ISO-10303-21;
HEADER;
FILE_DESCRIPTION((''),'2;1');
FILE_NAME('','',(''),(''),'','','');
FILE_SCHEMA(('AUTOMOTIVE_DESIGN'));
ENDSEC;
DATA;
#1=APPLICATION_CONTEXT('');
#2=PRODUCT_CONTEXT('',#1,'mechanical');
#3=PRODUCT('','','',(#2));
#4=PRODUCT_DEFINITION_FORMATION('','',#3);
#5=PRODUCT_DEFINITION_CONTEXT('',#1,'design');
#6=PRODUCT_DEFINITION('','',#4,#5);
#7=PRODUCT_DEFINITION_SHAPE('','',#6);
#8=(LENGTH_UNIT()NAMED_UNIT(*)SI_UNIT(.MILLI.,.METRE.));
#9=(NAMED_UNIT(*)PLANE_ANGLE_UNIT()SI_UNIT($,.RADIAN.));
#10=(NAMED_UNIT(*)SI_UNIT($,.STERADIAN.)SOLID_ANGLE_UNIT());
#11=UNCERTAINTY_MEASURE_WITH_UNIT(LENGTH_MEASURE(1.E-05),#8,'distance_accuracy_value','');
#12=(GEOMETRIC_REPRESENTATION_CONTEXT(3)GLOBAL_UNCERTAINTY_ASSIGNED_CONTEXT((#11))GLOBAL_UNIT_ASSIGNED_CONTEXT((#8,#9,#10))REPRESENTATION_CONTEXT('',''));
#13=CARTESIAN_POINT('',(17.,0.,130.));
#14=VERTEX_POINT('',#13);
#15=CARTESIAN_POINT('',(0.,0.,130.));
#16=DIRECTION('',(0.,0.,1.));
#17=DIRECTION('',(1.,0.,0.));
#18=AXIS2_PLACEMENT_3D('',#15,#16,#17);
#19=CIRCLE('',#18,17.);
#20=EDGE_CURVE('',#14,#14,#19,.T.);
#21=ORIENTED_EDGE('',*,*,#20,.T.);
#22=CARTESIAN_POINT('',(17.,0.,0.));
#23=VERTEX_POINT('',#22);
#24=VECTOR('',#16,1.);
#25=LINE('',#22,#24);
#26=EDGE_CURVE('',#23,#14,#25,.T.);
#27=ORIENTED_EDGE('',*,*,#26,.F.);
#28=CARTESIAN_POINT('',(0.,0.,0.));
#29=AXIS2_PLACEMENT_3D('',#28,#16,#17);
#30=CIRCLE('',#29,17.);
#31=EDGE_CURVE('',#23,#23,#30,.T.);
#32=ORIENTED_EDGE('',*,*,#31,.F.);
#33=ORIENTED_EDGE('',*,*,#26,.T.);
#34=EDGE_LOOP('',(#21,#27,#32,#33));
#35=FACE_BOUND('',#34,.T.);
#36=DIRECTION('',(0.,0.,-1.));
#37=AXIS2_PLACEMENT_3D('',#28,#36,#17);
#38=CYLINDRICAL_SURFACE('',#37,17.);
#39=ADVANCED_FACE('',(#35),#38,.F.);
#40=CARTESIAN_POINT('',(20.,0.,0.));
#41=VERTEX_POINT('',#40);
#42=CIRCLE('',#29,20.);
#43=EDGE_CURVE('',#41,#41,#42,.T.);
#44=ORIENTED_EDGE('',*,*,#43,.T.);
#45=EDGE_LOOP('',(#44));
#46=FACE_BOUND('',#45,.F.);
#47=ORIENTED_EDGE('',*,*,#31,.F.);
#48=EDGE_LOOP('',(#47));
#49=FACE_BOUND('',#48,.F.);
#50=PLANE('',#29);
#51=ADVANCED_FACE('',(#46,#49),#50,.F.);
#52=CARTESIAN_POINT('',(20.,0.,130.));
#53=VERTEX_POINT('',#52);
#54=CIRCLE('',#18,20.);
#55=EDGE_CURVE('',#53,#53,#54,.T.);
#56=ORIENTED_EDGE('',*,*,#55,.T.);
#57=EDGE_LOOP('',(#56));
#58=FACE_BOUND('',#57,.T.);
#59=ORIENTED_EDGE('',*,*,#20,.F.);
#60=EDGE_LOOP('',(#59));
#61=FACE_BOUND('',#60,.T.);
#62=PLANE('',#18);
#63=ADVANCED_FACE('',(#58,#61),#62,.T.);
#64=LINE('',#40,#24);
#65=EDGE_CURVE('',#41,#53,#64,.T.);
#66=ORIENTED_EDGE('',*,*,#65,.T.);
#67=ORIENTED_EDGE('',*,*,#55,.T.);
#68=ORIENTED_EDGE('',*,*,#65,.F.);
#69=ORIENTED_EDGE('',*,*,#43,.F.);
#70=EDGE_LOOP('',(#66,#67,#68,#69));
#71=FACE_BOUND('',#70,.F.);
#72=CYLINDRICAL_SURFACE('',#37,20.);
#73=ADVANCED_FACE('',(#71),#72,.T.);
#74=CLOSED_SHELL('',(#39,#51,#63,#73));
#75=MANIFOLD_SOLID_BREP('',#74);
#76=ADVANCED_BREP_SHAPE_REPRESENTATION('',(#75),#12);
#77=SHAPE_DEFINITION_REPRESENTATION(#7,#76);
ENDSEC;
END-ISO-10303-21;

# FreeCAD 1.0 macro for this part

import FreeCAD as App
import Part
import Sketcher

V = App.Vector

doc = App.newDocument("Part")
body = doc.addObject("PartDesign::Body", "Body")

sketch1 = body.newObject("Sketcher::SketchObject", "Sketch")
sketch1.AttachmentSupport = (doc.getObject("XY_Plane"), [""])
sketch1.MapMode = "FlatFace"
sketch1.addGeometry([
    Part.Circle(V(0, 0, 0), V(0, 0, 1), 20),
    Part.Circle(V(0, 0, 0), V(0, 0, 1), 17),
], False)
sketch1.addConstraint([
    Sketcher.Constraint("Coincident", 0, 3, -1, 1),
    Sketcher.Constraint("Coincident", 1, 3, -1, 1),
    Sketcher.Constraint("Diameter", 0, 40.0),
    Sketcher.Constraint("Diameter", 1, 34.0),
])
pad1 = body.newObject("PartDesign::Pad", "Pad")
pad1.Profile = sketch1
pad1.Length = 130

doc.recompute()
